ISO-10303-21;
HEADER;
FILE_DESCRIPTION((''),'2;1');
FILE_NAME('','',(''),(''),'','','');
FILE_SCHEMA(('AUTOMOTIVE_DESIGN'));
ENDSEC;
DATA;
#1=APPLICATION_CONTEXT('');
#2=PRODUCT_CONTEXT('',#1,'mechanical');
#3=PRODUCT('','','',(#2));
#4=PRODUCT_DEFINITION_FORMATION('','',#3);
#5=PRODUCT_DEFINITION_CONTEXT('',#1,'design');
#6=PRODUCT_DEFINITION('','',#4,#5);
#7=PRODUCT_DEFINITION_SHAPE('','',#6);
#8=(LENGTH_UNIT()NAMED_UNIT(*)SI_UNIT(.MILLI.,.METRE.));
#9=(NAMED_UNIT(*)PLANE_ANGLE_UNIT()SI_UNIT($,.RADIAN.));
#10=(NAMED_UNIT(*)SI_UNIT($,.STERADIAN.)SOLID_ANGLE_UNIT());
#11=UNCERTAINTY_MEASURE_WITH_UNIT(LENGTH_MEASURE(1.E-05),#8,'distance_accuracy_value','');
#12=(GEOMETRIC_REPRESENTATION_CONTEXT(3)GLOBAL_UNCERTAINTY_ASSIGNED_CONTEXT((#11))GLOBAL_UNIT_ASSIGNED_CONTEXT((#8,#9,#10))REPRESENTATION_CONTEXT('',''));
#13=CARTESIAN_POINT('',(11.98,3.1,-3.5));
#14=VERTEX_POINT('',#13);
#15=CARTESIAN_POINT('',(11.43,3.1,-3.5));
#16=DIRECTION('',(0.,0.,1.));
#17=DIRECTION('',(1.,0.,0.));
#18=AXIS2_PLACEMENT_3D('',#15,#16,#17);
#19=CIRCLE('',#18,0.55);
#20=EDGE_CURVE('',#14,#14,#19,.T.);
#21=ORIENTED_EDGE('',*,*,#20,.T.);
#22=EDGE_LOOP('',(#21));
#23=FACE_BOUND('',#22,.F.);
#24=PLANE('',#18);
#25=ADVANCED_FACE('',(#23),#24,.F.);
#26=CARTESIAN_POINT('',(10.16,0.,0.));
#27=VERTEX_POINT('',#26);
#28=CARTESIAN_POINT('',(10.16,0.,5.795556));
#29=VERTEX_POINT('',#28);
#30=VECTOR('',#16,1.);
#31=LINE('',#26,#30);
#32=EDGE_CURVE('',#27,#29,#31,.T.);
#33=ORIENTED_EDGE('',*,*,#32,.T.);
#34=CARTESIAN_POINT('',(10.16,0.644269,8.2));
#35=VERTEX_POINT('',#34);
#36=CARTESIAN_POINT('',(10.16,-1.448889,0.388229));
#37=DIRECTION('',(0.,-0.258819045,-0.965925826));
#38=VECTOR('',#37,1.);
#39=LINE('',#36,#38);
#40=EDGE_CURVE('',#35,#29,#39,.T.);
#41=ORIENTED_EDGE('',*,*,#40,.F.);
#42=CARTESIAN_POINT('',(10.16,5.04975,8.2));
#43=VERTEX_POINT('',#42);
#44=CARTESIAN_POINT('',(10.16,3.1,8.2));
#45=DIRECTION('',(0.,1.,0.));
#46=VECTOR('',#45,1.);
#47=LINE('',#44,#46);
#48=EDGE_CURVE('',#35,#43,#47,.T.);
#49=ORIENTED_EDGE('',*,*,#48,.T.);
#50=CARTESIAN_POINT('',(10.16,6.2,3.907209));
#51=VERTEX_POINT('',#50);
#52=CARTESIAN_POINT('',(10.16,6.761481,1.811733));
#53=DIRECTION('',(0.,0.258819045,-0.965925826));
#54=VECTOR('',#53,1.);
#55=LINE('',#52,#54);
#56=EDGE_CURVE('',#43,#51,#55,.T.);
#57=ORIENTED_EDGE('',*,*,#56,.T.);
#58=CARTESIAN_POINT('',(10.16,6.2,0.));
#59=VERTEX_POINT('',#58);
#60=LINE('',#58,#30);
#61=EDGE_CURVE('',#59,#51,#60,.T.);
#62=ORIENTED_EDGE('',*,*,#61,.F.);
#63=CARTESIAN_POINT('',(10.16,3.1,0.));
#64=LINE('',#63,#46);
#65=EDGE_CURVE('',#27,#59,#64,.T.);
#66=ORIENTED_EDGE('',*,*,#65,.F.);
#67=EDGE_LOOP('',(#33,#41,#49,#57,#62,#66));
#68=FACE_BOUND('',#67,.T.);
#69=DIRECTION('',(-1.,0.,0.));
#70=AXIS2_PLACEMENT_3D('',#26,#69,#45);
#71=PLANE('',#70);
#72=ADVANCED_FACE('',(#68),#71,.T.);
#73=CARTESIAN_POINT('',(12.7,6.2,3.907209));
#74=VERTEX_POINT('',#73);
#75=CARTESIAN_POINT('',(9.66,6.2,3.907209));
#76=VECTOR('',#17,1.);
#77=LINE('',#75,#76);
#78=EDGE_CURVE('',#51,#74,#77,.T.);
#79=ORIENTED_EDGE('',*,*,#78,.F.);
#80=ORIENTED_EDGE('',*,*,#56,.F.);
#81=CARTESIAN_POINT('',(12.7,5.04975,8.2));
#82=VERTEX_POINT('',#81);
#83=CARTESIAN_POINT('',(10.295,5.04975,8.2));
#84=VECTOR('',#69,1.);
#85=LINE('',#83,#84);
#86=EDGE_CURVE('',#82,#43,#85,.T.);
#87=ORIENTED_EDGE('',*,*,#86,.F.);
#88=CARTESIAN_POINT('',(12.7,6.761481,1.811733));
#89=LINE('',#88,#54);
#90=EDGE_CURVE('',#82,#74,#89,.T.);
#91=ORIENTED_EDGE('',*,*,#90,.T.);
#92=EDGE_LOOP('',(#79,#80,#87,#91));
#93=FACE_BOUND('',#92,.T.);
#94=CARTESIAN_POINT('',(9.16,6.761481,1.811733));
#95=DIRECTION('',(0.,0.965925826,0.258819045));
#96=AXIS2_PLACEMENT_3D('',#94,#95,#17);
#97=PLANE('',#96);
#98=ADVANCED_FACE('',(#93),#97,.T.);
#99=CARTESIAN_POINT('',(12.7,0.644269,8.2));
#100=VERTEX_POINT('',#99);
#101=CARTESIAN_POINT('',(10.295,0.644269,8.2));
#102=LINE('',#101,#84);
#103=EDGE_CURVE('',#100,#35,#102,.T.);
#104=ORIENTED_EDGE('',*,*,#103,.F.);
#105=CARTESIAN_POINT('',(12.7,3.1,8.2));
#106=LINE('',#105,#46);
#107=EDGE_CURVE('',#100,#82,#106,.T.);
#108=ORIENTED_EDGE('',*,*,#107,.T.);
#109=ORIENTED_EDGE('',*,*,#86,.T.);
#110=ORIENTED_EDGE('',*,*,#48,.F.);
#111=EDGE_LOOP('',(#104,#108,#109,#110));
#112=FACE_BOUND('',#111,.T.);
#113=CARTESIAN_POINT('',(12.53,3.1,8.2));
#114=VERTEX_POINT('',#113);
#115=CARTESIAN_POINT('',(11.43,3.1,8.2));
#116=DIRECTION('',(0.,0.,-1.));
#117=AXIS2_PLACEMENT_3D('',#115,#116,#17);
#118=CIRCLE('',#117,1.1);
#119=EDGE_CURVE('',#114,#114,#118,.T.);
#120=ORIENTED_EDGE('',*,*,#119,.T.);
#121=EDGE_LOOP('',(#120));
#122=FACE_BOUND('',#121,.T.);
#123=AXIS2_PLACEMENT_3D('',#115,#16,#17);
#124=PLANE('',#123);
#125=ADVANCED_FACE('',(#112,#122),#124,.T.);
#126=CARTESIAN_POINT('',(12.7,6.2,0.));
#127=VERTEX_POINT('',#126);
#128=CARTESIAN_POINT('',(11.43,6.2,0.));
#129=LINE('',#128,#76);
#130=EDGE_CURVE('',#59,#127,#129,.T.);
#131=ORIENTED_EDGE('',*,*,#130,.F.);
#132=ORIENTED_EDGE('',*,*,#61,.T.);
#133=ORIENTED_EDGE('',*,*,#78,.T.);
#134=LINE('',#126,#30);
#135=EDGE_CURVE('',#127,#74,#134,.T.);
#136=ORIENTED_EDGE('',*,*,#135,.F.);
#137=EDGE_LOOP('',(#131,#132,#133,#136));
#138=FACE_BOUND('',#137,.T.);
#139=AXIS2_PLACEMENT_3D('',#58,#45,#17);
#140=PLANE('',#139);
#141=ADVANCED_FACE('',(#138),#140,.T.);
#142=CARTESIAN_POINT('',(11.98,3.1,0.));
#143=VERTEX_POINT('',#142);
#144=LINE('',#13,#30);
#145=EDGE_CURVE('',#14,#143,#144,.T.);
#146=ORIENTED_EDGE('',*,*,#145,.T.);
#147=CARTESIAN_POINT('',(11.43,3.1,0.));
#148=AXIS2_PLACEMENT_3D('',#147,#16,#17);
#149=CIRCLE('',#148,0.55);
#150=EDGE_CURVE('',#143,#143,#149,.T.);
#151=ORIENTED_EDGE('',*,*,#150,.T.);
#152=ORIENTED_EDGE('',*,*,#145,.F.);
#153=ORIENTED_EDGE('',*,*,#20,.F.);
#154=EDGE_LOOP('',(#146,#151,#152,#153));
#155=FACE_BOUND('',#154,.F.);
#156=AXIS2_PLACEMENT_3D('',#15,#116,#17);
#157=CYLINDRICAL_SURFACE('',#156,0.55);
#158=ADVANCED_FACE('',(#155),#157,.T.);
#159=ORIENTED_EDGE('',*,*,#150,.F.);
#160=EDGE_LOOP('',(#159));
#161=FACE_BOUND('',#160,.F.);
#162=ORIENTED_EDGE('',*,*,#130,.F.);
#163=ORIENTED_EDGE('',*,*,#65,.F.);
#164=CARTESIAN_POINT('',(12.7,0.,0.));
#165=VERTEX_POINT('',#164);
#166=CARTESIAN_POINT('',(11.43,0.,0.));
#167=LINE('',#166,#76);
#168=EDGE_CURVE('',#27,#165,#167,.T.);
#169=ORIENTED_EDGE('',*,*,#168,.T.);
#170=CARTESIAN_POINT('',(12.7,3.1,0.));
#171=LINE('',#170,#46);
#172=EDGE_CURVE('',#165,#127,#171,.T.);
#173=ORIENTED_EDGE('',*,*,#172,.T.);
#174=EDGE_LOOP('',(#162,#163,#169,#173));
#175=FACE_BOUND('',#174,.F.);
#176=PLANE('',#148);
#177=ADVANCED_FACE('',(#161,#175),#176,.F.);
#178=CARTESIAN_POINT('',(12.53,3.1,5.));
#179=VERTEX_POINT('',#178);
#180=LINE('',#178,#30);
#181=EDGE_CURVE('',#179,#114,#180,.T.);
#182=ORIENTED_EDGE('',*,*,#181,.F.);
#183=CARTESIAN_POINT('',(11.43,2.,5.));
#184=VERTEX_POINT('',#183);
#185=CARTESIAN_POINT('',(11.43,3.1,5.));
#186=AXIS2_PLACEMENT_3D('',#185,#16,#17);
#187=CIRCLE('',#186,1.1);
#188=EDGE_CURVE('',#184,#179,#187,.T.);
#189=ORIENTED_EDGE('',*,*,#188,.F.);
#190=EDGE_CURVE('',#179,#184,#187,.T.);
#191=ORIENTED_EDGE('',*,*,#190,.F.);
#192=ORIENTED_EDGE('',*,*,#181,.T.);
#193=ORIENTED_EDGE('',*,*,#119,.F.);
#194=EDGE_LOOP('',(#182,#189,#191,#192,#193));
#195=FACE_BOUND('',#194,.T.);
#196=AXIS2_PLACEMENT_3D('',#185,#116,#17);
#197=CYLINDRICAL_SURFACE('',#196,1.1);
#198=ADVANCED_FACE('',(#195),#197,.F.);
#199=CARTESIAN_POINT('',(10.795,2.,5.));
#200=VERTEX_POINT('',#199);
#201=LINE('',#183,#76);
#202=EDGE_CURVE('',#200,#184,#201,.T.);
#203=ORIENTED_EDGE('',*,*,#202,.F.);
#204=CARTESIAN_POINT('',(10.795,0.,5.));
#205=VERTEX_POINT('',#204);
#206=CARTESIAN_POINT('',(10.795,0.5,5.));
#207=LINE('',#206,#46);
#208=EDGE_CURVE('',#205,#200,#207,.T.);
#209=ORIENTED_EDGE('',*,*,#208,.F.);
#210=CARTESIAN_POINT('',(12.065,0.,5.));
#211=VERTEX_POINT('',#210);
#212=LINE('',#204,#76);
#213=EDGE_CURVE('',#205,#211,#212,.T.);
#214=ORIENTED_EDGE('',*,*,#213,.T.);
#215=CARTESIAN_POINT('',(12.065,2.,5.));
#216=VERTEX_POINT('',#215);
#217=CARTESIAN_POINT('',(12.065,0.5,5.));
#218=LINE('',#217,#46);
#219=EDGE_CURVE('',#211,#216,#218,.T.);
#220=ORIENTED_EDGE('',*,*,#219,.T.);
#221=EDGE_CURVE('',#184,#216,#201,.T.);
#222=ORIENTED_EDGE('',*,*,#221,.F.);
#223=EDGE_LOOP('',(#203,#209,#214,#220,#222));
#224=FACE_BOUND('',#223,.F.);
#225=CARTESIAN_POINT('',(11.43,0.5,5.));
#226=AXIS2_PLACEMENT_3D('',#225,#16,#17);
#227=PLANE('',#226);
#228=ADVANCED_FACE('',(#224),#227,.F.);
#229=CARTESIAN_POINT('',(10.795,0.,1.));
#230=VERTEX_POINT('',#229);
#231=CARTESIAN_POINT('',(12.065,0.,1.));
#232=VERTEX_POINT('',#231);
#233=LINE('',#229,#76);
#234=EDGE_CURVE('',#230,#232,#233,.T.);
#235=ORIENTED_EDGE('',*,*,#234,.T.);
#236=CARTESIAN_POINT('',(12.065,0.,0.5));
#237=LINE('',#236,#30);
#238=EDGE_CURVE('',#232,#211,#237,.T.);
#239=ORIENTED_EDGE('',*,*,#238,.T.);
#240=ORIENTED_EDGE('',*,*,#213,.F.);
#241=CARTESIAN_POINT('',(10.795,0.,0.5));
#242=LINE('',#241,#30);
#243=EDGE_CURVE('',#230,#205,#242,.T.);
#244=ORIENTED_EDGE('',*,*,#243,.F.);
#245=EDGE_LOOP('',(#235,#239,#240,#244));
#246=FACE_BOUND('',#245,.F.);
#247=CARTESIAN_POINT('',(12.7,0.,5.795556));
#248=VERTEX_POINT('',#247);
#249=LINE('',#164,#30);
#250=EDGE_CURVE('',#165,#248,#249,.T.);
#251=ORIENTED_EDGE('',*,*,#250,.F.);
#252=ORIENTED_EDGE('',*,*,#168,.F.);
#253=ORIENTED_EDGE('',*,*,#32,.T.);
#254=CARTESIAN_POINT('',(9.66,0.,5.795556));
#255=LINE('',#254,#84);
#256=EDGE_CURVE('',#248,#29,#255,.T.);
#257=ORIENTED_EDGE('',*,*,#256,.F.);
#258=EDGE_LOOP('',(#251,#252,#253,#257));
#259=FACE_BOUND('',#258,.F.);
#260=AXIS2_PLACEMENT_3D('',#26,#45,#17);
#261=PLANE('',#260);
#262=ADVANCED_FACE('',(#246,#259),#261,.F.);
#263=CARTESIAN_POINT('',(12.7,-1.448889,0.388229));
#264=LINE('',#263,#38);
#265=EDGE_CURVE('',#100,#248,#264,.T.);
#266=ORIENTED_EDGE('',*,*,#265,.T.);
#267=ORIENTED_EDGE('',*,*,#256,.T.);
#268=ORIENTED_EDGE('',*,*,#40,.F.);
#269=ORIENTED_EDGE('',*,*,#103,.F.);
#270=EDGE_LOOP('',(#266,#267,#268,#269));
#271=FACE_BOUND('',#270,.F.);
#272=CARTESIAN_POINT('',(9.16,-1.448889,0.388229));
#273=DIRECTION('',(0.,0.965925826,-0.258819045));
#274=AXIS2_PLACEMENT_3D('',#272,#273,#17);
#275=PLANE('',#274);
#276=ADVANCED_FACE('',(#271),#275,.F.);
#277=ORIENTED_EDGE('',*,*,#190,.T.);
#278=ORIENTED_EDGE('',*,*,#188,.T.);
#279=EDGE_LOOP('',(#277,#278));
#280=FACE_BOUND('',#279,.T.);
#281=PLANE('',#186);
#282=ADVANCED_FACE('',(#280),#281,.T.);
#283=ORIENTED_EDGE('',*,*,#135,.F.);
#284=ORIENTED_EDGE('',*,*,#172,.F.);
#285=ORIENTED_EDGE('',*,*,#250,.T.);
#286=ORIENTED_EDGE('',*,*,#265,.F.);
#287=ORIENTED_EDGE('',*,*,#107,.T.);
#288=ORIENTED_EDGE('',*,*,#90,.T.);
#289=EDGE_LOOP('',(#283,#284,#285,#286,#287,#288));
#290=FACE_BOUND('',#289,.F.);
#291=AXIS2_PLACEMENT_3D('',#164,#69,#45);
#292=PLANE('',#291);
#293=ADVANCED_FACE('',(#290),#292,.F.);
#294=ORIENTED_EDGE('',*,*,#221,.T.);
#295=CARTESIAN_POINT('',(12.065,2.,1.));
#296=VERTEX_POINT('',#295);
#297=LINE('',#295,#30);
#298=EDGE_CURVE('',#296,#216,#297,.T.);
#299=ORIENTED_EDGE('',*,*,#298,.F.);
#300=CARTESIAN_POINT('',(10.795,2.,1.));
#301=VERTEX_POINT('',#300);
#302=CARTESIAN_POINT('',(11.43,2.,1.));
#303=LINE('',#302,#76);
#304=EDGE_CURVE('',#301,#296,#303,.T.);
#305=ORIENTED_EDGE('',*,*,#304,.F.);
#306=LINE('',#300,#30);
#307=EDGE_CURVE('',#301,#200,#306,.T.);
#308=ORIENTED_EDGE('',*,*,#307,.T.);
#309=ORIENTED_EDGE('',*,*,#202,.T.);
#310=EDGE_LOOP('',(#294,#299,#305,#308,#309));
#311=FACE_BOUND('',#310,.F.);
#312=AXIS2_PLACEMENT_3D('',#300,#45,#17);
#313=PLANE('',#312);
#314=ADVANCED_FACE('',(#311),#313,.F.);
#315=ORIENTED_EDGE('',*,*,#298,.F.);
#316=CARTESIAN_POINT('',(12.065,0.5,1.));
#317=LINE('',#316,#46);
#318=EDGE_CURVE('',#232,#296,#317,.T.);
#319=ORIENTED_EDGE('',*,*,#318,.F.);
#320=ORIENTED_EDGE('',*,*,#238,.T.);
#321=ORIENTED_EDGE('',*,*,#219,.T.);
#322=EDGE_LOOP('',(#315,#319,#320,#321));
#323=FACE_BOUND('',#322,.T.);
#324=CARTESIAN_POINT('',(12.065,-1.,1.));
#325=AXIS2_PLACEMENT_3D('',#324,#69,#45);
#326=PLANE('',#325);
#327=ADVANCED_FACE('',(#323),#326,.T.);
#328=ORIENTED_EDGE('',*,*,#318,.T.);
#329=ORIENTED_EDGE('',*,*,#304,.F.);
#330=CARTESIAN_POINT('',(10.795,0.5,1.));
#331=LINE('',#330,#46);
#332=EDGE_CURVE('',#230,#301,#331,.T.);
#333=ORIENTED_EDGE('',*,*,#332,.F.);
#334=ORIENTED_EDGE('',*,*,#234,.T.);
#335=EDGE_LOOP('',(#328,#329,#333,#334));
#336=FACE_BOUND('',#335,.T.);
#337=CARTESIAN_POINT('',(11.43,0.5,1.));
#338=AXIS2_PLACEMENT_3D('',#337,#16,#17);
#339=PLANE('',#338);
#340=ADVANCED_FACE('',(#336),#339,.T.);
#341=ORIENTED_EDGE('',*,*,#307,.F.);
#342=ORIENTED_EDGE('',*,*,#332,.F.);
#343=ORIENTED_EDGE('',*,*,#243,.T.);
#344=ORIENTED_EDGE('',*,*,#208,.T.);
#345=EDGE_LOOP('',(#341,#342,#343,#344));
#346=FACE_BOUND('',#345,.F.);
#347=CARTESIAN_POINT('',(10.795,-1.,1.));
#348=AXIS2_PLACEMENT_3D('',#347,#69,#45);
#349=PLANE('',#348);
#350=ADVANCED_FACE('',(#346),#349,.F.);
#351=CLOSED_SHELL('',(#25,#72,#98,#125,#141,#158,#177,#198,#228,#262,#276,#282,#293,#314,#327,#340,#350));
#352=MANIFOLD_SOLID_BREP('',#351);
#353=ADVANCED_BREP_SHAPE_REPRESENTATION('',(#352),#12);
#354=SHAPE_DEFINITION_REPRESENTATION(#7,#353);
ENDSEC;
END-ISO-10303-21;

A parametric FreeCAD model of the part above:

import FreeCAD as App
import Part
import Sketcher

V = App.Vector
Q = App.Units.Quantity


def add_polygon(sketch, points):
    """Adds a closed chain of lines whose ends are joined by coincident constraints."""
    first, n = sketch.GeometryCount, len(points)
    for a, b in zip(points, points[1:] + points[:1]):
        sketch.addGeometry(Part.LineSegment(App.Vector(*a, 0), App.Vector(*b, 0)), False)
    for i in range(n):
        sketch.addConstraint(Sketcher.Constraint("Coincident", first + i, 2, first + (i + 1) % n, 1))

doc = App.newDocument("Part")
body = doc.addObject("PartDesign::Body", "Body")

# Sketch on XY plane
sketch1 = doc.addObject("Sketcher::SketchObject", "Sketch")
body.addObject(sketch1)
sketch1.AttachmentSupport = (doc.XY_Plane, [""])
sketch1.MapMode = "FlatFace"
sketch1.AttachmentOffset = App.Placement(V(0, 0, -3.5), App.Rotation())
sketch1.addGeometry(Part.Circle(V(1.3, 3.1, 0), V(0, 0, 1), 0.6), False)
sketch1.addConstraint([
    Sketcher.Constraint("Diameter", 0, Q("1.1 mm")),
    Sketcher.Constraint("DistanceY", -1, 1, 0, 3, Q("3.1 mm")),
    Sketcher.Constraint("DistanceX", -1, 1, 0, 3, Q("1.27 mm")),
])
pad1 = doc.addObject("PartDesign::Pad", "Pad")
body.addObject(pad1)
pad1.Profile = sketch1
pad1.Length = 3.5
body2 = doc.addObject("PartDesign::Body", "Body001")

# Sketch on XY plane
sketch2 = doc.addObject("Sketcher::SketchObject", "Sketch001")
body2.addObject(sketch2)
sketch2.AttachmentSupport = (doc.getObject("XY_Plane001"), [""])
sketch2.MapMode = "FlatFace"
sketch2.AttachmentOffset = App.Placement(V(0, 0, 5), App.Rotation())
sketch2.addGeometry(Part.Circle(V(1.3, 3.1, 0), V(0, 0, 1), 1.1), False)
sketch2.addConstraint([
    Sketcher.Constraint("Diameter", 0, Q("2.2 mm")),
    Sketcher.Constraint("DistanceY", -1, 1, 0, 3, Q("3.1 mm")),
    Sketcher.Constraint("DistanceX", -1, 1, 0, 3, Q("1.27 mm")),
])
pad2 = doc.addObject("PartDesign::Pad", "Pad001")
body2.addObject(pad2)
pad2.Profile = sketch2
pad2.Length = 3.5
body3 = doc.addObject("PartDesign::Body", "Body002")

# Sketch on XY plane
sketch3 = doc.addObject("Sketcher::SketchObject", "Sketch002")
body3.addObject(sketch3)
sketch3.AttachmentSupport = (doc.getObject("XY_Plane002"), [""])
sketch3.MapMode = "FlatFace"
add_polygon(sketch3, [(0, 6), (0, 0), (4, 0), (4, 6)])  # lines 0-3
sketch3.addConstraint([
    Sketcher.Constraint("Vertical", 0),
    Sketcher.Constraint("Horizontal", 1),
    Sketcher.Constraint("Vertical", 2),
    Sketcher.Constraint("Horizontal", 3),
    Sketcher.Constraint("Coincident", 0, 2, -1, 1),
    Sketcher.Constraint("DistanceX", 1, 1, 1, 2, Q("4 mm")),
    Sketcher.Constraint("DistanceY", 0, 2, 0, 1, Q("6 mm")),
])
pad3 = doc.addObject("PartDesign::Pad", "Pad002")
body3.addObject(pad3)
pad3.Profile = sketch3
pad3.Length = 9
body4 = doc.addObject("PartDesign::Body", "Body003")
doc.recompute()

body3.Placement = App.Placement(V(-1, -7.244444, 1.941143), App.Rotation(V(-1, 0, 0), 15))
boolean = doc.addObject("PartDesign::Boolean", "Boolean")
body4.addObject(boolean)
boolean.Type = "Fuse"
boolean.addObjects([body3])
body5 = doc.addObject("PartDesign::Body", "Body004")

# Sketch on XY plane
sketch4 = doc.addObject("Sketcher::SketchObject", "Sketch003")
body5.addObject(sketch4)
sketch4.AttachmentSupport = (doc.getObject("XY_Plane004"), [""])
sketch4.MapMode = "FlatFace"
add_polygon(sketch4, [(0, 6), (0, 0), (4, 0), (4, 6)])  # lines 0-3
sketch4.addConstraint([
    Sketcher.Constraint("Vertical", 0),
    Sketcher.Constraint("Horizontal", 1),
    Sketcher.Constraint("Vertical", 2),
    Sketcher.Constraint("Horizontal", 3),
    Sketcher.Constraint("Coincident", 0, 2, -1, 1),
    Sketcher.Constraint("DistanceX", 1, 1, 1, 2, Q("4 mm")),
    Sketcher.Constraint("DistanceY", 0, 2, 0, 1, Q("6 mm")),
])
pad4 = doc.addObject("PartDesign::Pad", "Pad003")
body5.addObject(pad4)
pad4.Profile = sketch4
pad4.Length = 8
body6 = doc.addObject("PartDesign::Body", "Body005")
doc.recompute()

body5.Placement = App.Placement(V(-1, 6.761481, 1.811733), App.Rotation(V(1, 0, 0), 15))
boolean2 = doc.addObject("PartDesign::Boolean", "Boolean001")
body6.addObject(boolean2)
boolean2.Type = "Fuse"
boolean2.addObjects([body5])
body7 = doc.addObject("PartDesign::Body", "Body006")

# Sketch on XY plane
sketch5 = doc.addObject("Sketcher::SketchObject", "Sketch004")
body7.addObject(sketch5)
sketch5.AttachmentSupport = (doc.getObject("XY_Plane006"), [""])
sketch5.MapMode = "FlatFace"
sketch5.AttachmentOffset = App.Placement(V(0, 0, 1), App.Rotation())
add_polygon(sketch5, [(0.6, 2), (0.6, -1), (1.9, -1), (1.9, 2)])  # lines 0-3
sketch5.addConstraint([
    Sketcher.Constraint("Vertical", 0),
    Sketcher.Constraint("Horizontal", 1),
    Sketcher.Constraint("Vertical", 2),
    Sketcher.Constraint("Horizontal", 3),
    Sketcher.Constraint("DistanceY", 0, 2, 0, 1, Q("3 mm")),
    Sketcher.Constraint("DistanceY", 0, 2, -1, 1, Q("1 mm")),
    Sketcher.Constraint("DistanceX", 1, 1, 1, 2, Q("1.27 mm")),
    Sketcher.Constraint("DistanceX", -1, 1, 0, 2, Q("0.635 mm")),
])
pad5 = doc.addObject("PartDesign::Pad", "Pad004")
body7.addObject(pad5)
pad5.Profile = sketch5
pad5.Length = 4
body8 = doc.addObject("PartDesign::Body", "Body007")

# Sketch on XY plane
sketch6 = doc.addObject("Sketcher::SketchObject", "Sketch005")
body8.addObject(sketch6)
sketch6.AttachmentSupport = (doc.getObject("XY_Plane007"), [""])
sketch6.MapMode = "FlatFace"
add_polygon(sketch6, [(0, 6.2), (0, 0), (2.5, 0), (2.5, 6.2)])  # lines 0-3
sketch6.addConstraint([
    Sketcher.Constraint("Vertical", 0),
    Sketcher.Constraint("Horizontal", 1),
    Sketcher.Constraint("Vertical", 2),
    Sketcher.Constraint("Horizontal", 3),
    Sketcher.Constraint("Coincident", 0, 2, -1, 1),
    Sketcher.Constraint("DistanceY", 0, 2, 0, 1, Q("6.2 mm")),
    Sketcher.Constraint("DistanceX", 1, 1, 1, 2, Q("2.54 mm")),
])
pad6 = doc.addObject("PartDesign::Pad", "Pad005")
body8.addObject(pad6)
pad6.Profile = sketch6
pad6.Length = 8.2
doc.recompute()

boolean3 = doc.addObject("PartDesign::Boolean", "Boolean002")
body8.addObject(boolean3)
boolean3.Type = "Cut"
boolean3.addObjects([body7])
doc.recompute()

boolean4 = doc.addObject("PartDesign::Boolean", "Boolean003")
body8.addObject(boolean4)
boolean4.Type = "Cut"
boolean4.addObjects([body6])
doc.recompute()

boolean5 = doc.addObject("PartDesign::Boolean", "Boolean004")
body8.addObject(boolean5)
boolean5.Type = "Cut"
boolean5.addObjects([body4])
doc.recompute()

boolean6 = doc.addObject("PartDesign::Boolean", "Boolean005")
body8.addObject(boolean6)
boolean6.Type = "Cut"
boolean6.addObjects([body2])
doc.recompute()

boolean7 = doc.addObject("PartDesign::Boolean", "Boolean006")
body8.addObject(boolean7)
boolean7.Type = "Fuse"
boolean7.addObjects([body])
body9 = doc.addObject("PartDesign::Body", "Body008")
doc.recompute()

body8.Placement = App.Placement(V(10.16, 0, 0), App.Rotation(V(0, 0, 1), 0))
boolean8 = doc.addObject("PartDesign::Boolean", "Boolean007")
body9.addObject(boolean8)
boolean8.Type = "Fuse"
boolean8.addObjects([body8])

doc.recompute()
